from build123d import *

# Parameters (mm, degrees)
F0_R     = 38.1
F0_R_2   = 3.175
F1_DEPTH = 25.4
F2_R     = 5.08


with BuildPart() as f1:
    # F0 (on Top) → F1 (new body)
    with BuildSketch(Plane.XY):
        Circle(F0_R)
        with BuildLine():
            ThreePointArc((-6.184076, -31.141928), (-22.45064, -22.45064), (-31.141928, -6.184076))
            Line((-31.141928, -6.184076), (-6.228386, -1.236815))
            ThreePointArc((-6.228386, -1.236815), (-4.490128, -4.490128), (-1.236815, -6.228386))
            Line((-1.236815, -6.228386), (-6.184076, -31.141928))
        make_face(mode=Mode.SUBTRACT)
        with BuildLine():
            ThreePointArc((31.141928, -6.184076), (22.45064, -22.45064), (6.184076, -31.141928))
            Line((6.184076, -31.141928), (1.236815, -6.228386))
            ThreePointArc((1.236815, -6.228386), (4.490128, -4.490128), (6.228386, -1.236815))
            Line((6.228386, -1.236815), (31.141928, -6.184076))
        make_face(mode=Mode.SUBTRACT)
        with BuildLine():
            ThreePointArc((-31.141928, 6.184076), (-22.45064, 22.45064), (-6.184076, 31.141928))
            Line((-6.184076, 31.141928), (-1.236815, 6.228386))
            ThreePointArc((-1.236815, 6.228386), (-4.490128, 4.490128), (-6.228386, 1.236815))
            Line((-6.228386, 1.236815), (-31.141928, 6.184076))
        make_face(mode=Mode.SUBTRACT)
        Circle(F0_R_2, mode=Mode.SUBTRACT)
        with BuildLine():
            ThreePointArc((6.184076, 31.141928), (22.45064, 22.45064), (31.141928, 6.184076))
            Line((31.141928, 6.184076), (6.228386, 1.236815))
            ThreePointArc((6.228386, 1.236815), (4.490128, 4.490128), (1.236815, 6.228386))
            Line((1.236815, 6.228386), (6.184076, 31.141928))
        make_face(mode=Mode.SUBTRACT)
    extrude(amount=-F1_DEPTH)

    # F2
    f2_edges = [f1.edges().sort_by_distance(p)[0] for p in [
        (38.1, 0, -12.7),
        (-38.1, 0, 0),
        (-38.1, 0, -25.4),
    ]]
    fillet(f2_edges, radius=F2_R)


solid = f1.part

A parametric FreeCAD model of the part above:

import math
import FreeCAD as App
import Part
import Sketcher
from FreeCAD import Vector
Q = App.Units.Quantity


def edges_at(feature, points):
    """Names of the edges that pass closest to the given points."""
    edges = feature.Shape.Edges
    near = lambda p: min(range(len(edges)), key=lambda i: edges[i].distToShape(Part.Vertex(*p))[0])
    return sorted({f"Edge{near(p) + 1}" for p in points})

doc = App.newDocument("Part")
params = doc.addObject("Spreadsheet::Sheet", "Params")
for row, (alias, value) in enumerate([
    ("sketch1_diameter", "3 in"),
    ("sketch1_diameter2", "0.25 in"),
    ("sketch1_radius", "1.25 in"),
    ("sketch1_radius2", "0.2500001 in"),
    ("pad1_length", "1 in"),
    ("fillet_radius", "0.2 in"),
], start=1):
    params.set(f"A{row}", alias)
    params.set(f"B{row}", "=" + value)
    params.setAlias(f"B{row}", alias)

body = doc.addObject("PartDesign::Body", "Body")

# Sketch on XY plane
sketch1 = doc.addObject("Sketcher::SketchObject", "Sketch")
body.addObject(sketch1)
sketch1.AttachmentSupport = (doc.XY_Plane, [""])
sketch1.MapMode = "FlatFace"
sketch1.addGeometry(Part.Circle(Vector(0, 0, 0), Vector(0, 0, 1), 38.1), False)
sketch1.addGeometry(Part.LineSegment(Vector(-1.2, -6.2, 0), Vector(-6.2, -31.1, 0)), False)
sketch1.addGeometry(Part.ArcOfCircle(Part.Circle(Vector(0, 0, 0), Vector(0, 0, 1), 31.7), math.radians(-169), math.radians(-101)), False)
sketch1.addGeometry(Part.LineSegment(Vector(-31.1, -6.2, 0), Vector(-6.2, -1.2, 0)), False)
sketch1.addGeometry(Part.ArcOfCircle(Part.Circle(Vector(0, 0, 0), Vector(0, 0, 1), 6.4), math.radians(-169), math.radians(-101)), False)
sketch1.addGeometry(Part.LineSegment(Vector(6.2, -1.2, 0), Vector(31.1, -6.2, 0)), False)
sketch1.addGeometry(Part.ArcOfCircle(Part.Circle(Vector(0, 0, 0), Vector(0, 0, 1), 31.7), math.radians(-79), math.radians(-11)), False)
sketch1.addGeometry(Part.LineSegment(Vector(6.2, -31.1, 0), Vector(1.2, -6.2, 0)), False)
sketch1.addGeometry(Part.ArcOfCircle(Part.Circle(Vector(0, 0, 0), Vector(0, 0, 1), 6.4), math.radians(-79), math.radians(-11)), False)
sketch1.addGeometry(Part.LineSegment(Vector(-6.2, 1.2, 0), Vector(-31.1, 6.2, 0)), False)
sketch1.addGeometry(Part.ArcOfCircle(Part.Circle(Vector(0, 0, 0), Vector(0, 0, 1), 31.7), math.radians(101), math.radians(169)), False)
sketch1.addGeometry(Part.LineSegment(Vector(-6.2, 31.1, 0), Vector(-1.2, 6.2, 0)), False)
sketch1.addGeometry(Part.ArcOfCircle(Part.Circle(Vector(0, 0, 0), Vector(0, 0, 1), 6.4), math.radians(101), math.radians(169)), False)
sketch1.addGeometry(Part.Circle(Vector(0, 0, 0), Vector(0, 0, 1), 3.2), False)
sketch1.addGeometry(Part.LineSegment(Vector(1.2, 6.2, 0), Vector(6.2, 31.1, 0)), False)
sketch1.addGeometry(Part.ArcOfCircle(Part.Circle(Vector(0, 0, 0), Vector(0, 0, 1), 31.7), math.radians(11), math.radians(79)), False)
sketch1.addGeometry(Part.LineSegment(Vector(31.1, 6.2, 0), Vector(6.2, 1.2, 0)), False)
sketch1.addGeometry(Part.ArcOfCircle(Part.Circle(Vector(0, 0, 0), Vector(0, 0, 1), 6.4), math.radians(11), math.radians(79)), False)
sketch1.addConstraint(Sketcher.Constraint("Coincident", 1, 2, 2, 2))
sketch1.addConstraint(Sketcher.Constraint("Coincident", 2, 1, 3, 1))
sketch1.addConstraint(Sketcher.Constraint("Coincident", 3, 2, 4, 1))
sketch1.addConstraint(Sketcher.Constraint("Coincident", 4, 2, 1, 1))
sketch1.addConstraint(Sketcher.Constraint("Coincident", 5, 2, 6, 2))
sketch1.addConstraint(Sketcher.Constraint("Coincident", 6, 1, 7, 1))
sketch1.addConstraint(Sketcher.Constraint("Coincident", 7, 2, 8, 1))
sketch1.addConstraint(Sketcher.Constraint("Coincident", 8, 2, 5, 1))
sketch1.addConstraint(Sketcher.Constraint("Coincident", 9, 2, 10, 2))
sketch1.addConstraint(Sketcher.Constraint("Coincident", 10, 1, 11, 1))
sketch1.addConstraint(Sketcher.Constraint("Coincident", 11, 2, 12, 1))
sketch1.addConstraint(Sketcher.Constraint("Coincident", 12, 2, 9, 1))
sketch1.addConstraint(Sketcher.Constraint("Coincident", 14, 2, 15, 2))
sketch1.addConstraint(Sketcher.Constraint("Coincident", 15, 1, 16, 1))
sketch1.addConstraint(Sketcher.Constraint("Coincident", 16, 2, 17, 1))
sketch1.addConstraint(Sketcher.Constraint("Coincident", 17, 2, 14, 1))
sketch1.addConstraint(Sketcher.Constraint("Coincident", 0, 3, -1, 1))
sketch1.addConstraint(Sketcher.Constraint("Coincident", 2, 3, -1, 1))
sketch1.addConstraint(Sketcher.Constraint("Coincident", 4, 3, -1, 1))
sketch1.addConstraint(Sketcher.Constraint("Coincident", 6, 3, -1, 1))
sketch1.addConstraint(Sketcher.Constraint("Coincident", 8, 3, -1, 1))
sketch1.addConstraint(Sketcher.Constraint("Coincident", 10, 3, -1, 1))
sketch1.addConstraint(Sketcher.Constraint("Coincident", 12, 3, -1, 1))
sketch1.addConstraint(Sketcher.Constraint("Coincident", 13, 3, -1, 1))
sketch1.addConstraint(Sketcher.Constraint("Coincident", 15, 3, -1, 1))
sketch1.addConstraint(Sketcher.Constraint("Coincident", 17, 3, -1, 1))
sketch1.addConstraint(Sketcher.Constraint("Equal", 2, 6))
sketch1.addConstraint(Sketcher.Constraint("Equal", 4, 8))
sketch1.addConstraint(Sketcher.Constraint("Equal", 6, 10))
sketch1.addConstraint(Sketcher.Constraint("Equal", 8, 12))
sketch1.addConstraint(Sketcher.Constraint("Equal", 10, 15))
sketch1.addConstraint(Sketcher.Constraint("Equal", 12, 17))
sketch1.addConstraint(Sketcher.Constraint("Perpendicular", 1, 5))
sketch1.addConstraint(Sketcher.Constraint("Perpendicular", 3, 7))
sketch1.addConstraint(Sketcher.Constraint("Parallel", 5, 9))
sketch1.addConstraint(Sketcher.Constraint("Parallel", 7, 11))
sketch1.addConstraint(Sketcher.Constraint("Perpendicular", 9, 14))
sketch1.addConstraint(Sketcher.Constraint("Perpendicular", 11, 16))
sketch1.addConstraint(Sketcher.Constraint("Horizontal", 2, 1, 5, 2))
sketch1.addConstraint(Sketcher.Constraint("Horizontal", 1, 2, 6, 1))
sketch1.addConstraint(Sketcher.Constraint("Horizontal", 4, 2, 7, 2))
sketch1.addConstraint(Sketcher.Constraint("Horizontal", 10, 1, 14, 2))
sketch1.addConstraint(Sketcher.Constraint("Horizontal", 9, 2, 15, 1))
sketch1.addConstraint(Sketcher.Constraint("Vertical", 2, 1, 9, 2))
sketch1.addConstraint(Sketcher.Constraint("Vertical", 1, 2, 10, 1))
sketch1.addConstraint(Sketcher.Constraint("Diameter", 0, Q("3 in")))
sketch1.addConstraint(Sketcher.Constraint("Diameter", 13, Q("0.25 in")))
sketch1.addConstraint(Sketcher.Constraint("Radius", 2, Q("1.25 in")))
sketch1.addConstraint(Sketcher.Constraint("Radius", 4, Q("0.2500001 in")))
sketch1.addConstraint(Sketcher.Constraint("DistanceY", 1, 2, -1, 1, 31.141928))
sketch1.addConstraint(Sketcher.Constraint("DistanceX", -1, 1, 5, 2, 31.141928))
sketch1.addConstraint(Sketcher.Constraint("DistanceX", 4, 2, 6, 1, 7.420891))
sketch1.setExpression("Constraints[45]", "Params.sketch1_diameter")
sketch1.setExpression("Constraints[46]", "Params.sketch1_diameter2")
sketch1.setExpression("Constraints[47]", "Params.sketch1_radius")
sketch1.setExpression("Constraints[48]", "Params.sketch1_radius2")
pad1 = doc.addObject("PartDesign::Pad", "Pad")
body.addObject(pad1)
pad1.Profile = sketch1
pad1.setExpression("Length", "Params.pad1_length")
pad1.Reversed = True
doc.recompute()

fillet = doc.addObject("PartDesign::Fillet", "Fillet")
body.addObject(fillet)
fillet.Base = (pad1, edges_at(pad1, [(38.1, 0, -12.7), (-38.1, 0, 0), (-38.1, 0, -25.4)]))
fillet.setExpression("Radius", "Params.fillet_radius")

doc.recompute()
